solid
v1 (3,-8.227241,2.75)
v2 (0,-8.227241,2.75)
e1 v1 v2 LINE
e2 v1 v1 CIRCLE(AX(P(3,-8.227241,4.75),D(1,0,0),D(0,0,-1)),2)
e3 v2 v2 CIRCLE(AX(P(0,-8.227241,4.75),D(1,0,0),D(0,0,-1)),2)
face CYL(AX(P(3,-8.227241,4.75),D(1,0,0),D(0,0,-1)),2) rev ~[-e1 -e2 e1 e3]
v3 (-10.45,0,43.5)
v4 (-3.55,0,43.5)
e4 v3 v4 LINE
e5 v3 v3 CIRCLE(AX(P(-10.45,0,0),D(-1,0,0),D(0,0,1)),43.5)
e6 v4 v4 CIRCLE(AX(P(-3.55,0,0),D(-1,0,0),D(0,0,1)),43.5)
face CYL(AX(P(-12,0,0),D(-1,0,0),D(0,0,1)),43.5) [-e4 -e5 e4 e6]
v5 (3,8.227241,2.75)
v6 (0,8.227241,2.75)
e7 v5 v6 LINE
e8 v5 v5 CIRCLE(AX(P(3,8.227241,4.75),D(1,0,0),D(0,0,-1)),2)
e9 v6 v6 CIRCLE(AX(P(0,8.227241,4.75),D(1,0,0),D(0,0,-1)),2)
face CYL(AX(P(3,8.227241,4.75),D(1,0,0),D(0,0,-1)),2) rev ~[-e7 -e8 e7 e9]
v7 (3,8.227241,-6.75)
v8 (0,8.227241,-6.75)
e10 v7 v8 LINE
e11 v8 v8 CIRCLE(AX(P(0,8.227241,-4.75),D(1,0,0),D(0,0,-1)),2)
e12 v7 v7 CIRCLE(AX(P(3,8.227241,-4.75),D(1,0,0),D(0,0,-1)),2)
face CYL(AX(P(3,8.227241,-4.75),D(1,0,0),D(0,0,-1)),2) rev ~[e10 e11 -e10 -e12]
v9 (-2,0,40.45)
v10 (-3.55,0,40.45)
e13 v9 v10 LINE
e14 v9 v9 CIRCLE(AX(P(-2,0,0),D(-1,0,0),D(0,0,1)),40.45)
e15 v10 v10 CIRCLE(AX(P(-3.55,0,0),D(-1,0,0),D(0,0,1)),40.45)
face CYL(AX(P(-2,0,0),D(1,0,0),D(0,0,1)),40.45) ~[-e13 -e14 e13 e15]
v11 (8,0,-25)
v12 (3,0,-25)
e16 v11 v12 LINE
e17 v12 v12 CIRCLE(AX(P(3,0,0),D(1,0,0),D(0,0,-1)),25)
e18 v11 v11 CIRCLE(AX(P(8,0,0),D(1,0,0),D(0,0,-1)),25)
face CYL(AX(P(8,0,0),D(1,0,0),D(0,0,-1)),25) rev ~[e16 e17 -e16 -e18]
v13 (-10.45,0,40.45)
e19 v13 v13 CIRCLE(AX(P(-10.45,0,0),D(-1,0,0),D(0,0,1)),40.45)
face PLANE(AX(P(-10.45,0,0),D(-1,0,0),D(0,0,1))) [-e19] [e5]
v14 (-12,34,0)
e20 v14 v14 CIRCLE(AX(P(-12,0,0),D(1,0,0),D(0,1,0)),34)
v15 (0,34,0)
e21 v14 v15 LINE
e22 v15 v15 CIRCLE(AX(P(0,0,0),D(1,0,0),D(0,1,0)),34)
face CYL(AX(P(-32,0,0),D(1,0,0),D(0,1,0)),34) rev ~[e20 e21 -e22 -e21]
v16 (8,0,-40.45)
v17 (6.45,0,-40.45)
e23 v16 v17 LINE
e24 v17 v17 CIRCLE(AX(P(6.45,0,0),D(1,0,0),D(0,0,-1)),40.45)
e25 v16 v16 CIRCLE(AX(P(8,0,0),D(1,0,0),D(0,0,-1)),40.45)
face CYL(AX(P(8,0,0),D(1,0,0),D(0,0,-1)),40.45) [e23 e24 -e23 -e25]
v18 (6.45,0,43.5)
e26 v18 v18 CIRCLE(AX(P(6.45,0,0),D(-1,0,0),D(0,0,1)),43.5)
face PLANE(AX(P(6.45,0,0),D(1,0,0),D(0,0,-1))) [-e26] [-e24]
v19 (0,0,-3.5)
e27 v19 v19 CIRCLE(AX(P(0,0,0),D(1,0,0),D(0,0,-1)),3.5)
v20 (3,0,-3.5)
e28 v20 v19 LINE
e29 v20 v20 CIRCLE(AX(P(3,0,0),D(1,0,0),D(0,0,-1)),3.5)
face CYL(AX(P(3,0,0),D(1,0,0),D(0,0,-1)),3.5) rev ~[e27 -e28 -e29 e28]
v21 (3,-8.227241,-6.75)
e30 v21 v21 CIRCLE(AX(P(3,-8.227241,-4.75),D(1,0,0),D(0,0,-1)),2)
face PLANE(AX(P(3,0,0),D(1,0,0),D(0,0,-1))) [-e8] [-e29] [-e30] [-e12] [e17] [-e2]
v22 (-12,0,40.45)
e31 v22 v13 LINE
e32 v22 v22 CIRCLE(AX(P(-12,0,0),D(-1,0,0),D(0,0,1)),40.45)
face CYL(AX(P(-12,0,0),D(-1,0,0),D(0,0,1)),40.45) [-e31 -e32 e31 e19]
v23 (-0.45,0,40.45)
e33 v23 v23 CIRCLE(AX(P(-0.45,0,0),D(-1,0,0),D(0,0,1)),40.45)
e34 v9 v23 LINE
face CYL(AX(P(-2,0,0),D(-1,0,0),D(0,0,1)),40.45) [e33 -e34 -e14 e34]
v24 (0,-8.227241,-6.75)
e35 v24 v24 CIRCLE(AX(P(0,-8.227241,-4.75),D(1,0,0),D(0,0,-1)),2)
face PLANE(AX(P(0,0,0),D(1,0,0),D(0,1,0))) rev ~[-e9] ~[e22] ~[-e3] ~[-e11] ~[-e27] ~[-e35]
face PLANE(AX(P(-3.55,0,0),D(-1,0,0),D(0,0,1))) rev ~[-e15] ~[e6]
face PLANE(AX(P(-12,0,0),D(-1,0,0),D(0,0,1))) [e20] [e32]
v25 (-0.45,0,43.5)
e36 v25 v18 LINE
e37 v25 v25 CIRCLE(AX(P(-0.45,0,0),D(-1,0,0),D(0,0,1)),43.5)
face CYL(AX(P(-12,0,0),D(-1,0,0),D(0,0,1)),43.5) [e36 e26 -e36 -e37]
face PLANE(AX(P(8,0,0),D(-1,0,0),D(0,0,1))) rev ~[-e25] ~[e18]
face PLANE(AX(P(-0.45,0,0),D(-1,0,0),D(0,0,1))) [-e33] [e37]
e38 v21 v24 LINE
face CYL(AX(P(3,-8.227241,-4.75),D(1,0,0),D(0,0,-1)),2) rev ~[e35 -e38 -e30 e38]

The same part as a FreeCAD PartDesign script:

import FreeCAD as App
import Part
import Sketcher
Q = App.Units.Quantity


def add_polygon(sketch, points):
    """Adds a closed chain of lines whose ends are joined by coincident constraints."""
    first, n = sketch.GeometryCount, len(points)
    for a, b in zip(points, points[1:] + points[:1]):
        sketch.addGeometry(Part.LineSegment(App.Vector(*a, 0), App.Vector(*b, 0)), False)
    for i in range(n):
        sketch.addConstraint(Sketcher.Constraint("Coincident", first + i, 2, first + (i + 1) % n, 1))

doc = App.newDocument("Part")
body = doc.addObject("PartDesign::Body", "Body")

# Sketch on XY plane
sketch1 = body.newObject("Sketcher::SketchObject", "Sketch")
sketch1.AttachmentSupport = (doc.getObject("XY_Plane"), [""])
sketch1.MapMode = "FlatFace"
add_polygon(sketch1, [(0, 34), (0, 0), (8, 0), (8, 40), (3, 40), (3, 39), (-27, 39), (-27, 40), (-32, 40), (-32, 34)])  # lines 0-9
sketch1.addConstraint(Sketcher.Constraint("Vertical", 0))
sketch1.addConstraint(Sketcher.Constraint("Horizontal", 1))
sketch1.addConstraint(Sketcher.Constraint("Vertical", 2))
sketch1.addConstraint(Sketcher.Constraint("Horizontal", 3))
sketch1.addConstraint(Sketcher.Constraint("Vertical", 4))
sketch1.addConstraint(Sketcher.Constraint("Horizontal", 5))
sketch1.addConstraint(Sketcher.Constraint("Vertical", 6))
sketch1.addConstraint(Sketcher.Constraint("Horizontal", 7))
sketch1.addConstraint(Sketcher.Constraint("Vertical", 8))
sketch1.addConstraint(Sketcher.Constraint("Horizontal", 9))
sketch1.addConstraint(Sketcher.Constraint("Coincident", 0, 2, -1, 1))
sketch1.addConstraint(Sketcher.Constraint("Horizontal", 3, 2, 6, 2))
sketch1.addConstraint(Sketcher.Constraint("Equal", 3, 7))
sketch1.addConstraint(Sketcher.Constraint("DistanceX", 1, 1, 1, 2, Q("8 mm")))
sketch1.addConstraint(Sketcher.Constraint("DistanceX", 3, 2, 3, 1, Q("5 mm")))
sketch1.addConstraint(Sketcher.Constraint("DistanceX", 5, 2, 5, 1, Q("30 mm")))
sketch1.addConstraint(Sketcher.Constraint("DistanceY", 0, 2, 0, 1, Q("34 mm")))
sketch1.addConstraint(Sketcher.Constraint("DistanceY", 2, 1, 2, 2, Q("40 mm")))
sketch1.addConstraint(Sketcher.Constraint("DistanceY", 4, 2, 4, 1, Q("1 mm")))
revolution = body.newObject("PartDesign::Revolution", "Revolution")
revolution.Profile = sketch1
revolution.ReferenceAxis = (sketch1, ["H_Axis"])
revolution.Angle = 360

# Sketch on XY plane
sketch2 = body.newObject("Sketcher::SketchObject", "Sketch001")
sketch2.AttachmentSupport = (doc.getObject("XY_Plane"), [""])
sketch2.MapMode = "FlatFace"
add_polygon(sketch2, [(3, 12), (3, 0), (8, 0), (8, 12)])  # lines 0-3
sketch2.addConstraint(Sketcher.Constraint("Vertical", 0))
sketch2.addConstraint(Sketcher.Constraint("Horizontal", 1))
sketch2.addConstraint(Sketcher.Constraint("Vertical", 2))
sketch2.addConstraint(Sketcher.Constraint("Horizontal", 3))
sketch2.addConstraint(Sketcher.Constraint("PointOnObject", 0, 2, -1))
sketch2.addConstraint(Sketcher.Constraint("DistanceX", 1, 1, 1, 2, Q("5 mm")))
sketch2.addConstraint(Sketcher.Constraint("DistanceY", 0, 2, 0, 1, Q("12.5 mm")))
sketch2.addConstraint(Sketcher.Constraint("DistanceX", -1, 1, 0, 2, Q("3 mm")))
groove = body.newObject("PartDesign::Groove", "Groove")
groove.Profile = sketch2
groove.ReferenceAxis = (sketch2, ["H_Axis"])
groove.Angle = 360

# Sketch on YZ plane
sketch3 = body.newObject("Sketcher::SketchObject", "Sketch002")
sketch3.AttachmentSupport = (doc.getObject("YZ_Plane"), [""])
sketch3.MapMode = "FlatFace"
sketch3.AttachmentOffset = App.Placement(App.Vector(0, 0, 3), App.Rotation())
sketch3.addGeometry(Part.Circle(App.Vector(8.2, -4.8, 0), App.Vector(0, 0, 1), 2), False)
sketch3.addGeometry(Part.Circle(App.Vector(8.2, 4.8, 0), App.Vector(0, 0, 1), 2), False)
sketch3.addGeometry(Part.Circle(App.Vector(-8.2, -4.8, 0), App.Vector(0, 0, 1), 2), False)
sketch3.addGeometry(Part.Circle(App.Vector(-8.2, 4.8, 0), App.Vector(0, 0, 1), 2), False)
sketch3.addConstraint(Sketcher.Constraint("Equal", 0, 1))
sketch3.addConstraint(Sketcher.Constraint("Equal", 1, 2))
sketch3.addConstraint(Sketcher.Constraint("Equal", 2, 3))
sketch3.addConstraint(Sketcher.Constraint("Symmetric", 1, 3, 2, 3, -1, 1))
sketch3.addConstraint(Sketcher.Constraint("Symmetric", 0, 3, 3, 3, -1, 1))
sketch3.addConstraint(Sketcher.Constraint("Symmetric", 0, 3, 2, 3, -2))
sketch3.addConstraint(Sketcher.Constraint("Diameter", 0, Q("4 mm")))
sketch3.addConstraint(Sketcher.Constraint("DistanceY", 0, 3, 1, 3, Q("9.5 mm")))
sketch3.addConstraint(Sketcher.Constraint("DistanceX", -1, 1, 0, 3, Q("8.227241 mm")))
pocket1 = body.newObject("PartDesign::Pocket", "Pocket")
pocket1.Profile = sketch3
pocket1.Type = "ThroughAll"

# Sketch on YZ plane
sketch4 = body.newObject("Sketcher::SketchObject", "Sketch003")
sketch4.AttachmentSupport = (doc.getObject("YZ_Plane"), [""])
sketch4.MapMode = "FlatFace"
sketch4.AttachmentOffset = App.Placement(App.Vector(0, 0, 3), App.Rotation())
sketch4.addGeometry(Part.Circle(App.Vector(0, 0, 0), App.Vector(0, 0, 1), 3.5), False)
sketch4.addConstraint(Sketcher.Constraint("Coincident", 0, 3, -1, 1))
sketch4.addConstraint(Sketcher.Constraint("Diameter", 0, Q("7 mm")))
pocket2 = body.newObject("PartDesign::Pocket", "Pocket001")
pocket2.Profile = sketch4
pocket2.Type = "ThroughAll"

# Sketch on YZ plane
sketch5 = body.newObject("Sketcher::SketchObject", "Sketch004")
sketch5.AttachmentSupport = (doc.getObject("YZ_Plane"), [""])
sketch5.MapMode = "FlatFace"
sketch5.AttachmentOffset = App.Placement(App.Vector(0, 0, -32), App.Rotation())
sketch5.addGeometry(Part.Circle(App.Vector(0, 0, 0), App.Vector(0, 0, 1), 40), False)
sketch5.addConstraint(Sketcher.Constraint("Coincident", 0, 3, -1, 1))
sketch5.addConstraint(Sketcher.Constraint("Diameter", 0, Q("80 mm")))
pocket3 = body.newObject("PartDesign::Pocket", "Pocket002")
pocket3.Profile = sketch5
pocket3.Length = 20
pocket3.Reversed = True

# Sketch on YZ plane
sketch6 = body.newObject("Sketcher::SketchObject", "Sketch005")
sketch6.AttachmentSupport = (doc.getObject("YZ_Plane"), [""])
sketch6.MapMode = "FlatFace"
sketch6.AttachmentOffset = App.Placement(App.Vector(0, 0, 3), App.Rotation())
sketch6.addGeometry(Part.Circle(App.Vector(0, 0, 0), App.Vector(0, 0, 1), 40), False)
sketch6.addGeometry(Part.Circle(App.Vector(0, 0, 0), App.Vector(0, 0, 1), 39), False)
sketch6.addConstraint(Sketcher.Constraint("Coincident", 0, 3, -1, 1))
sketch6.addConstraint(Sketcher.Constraint("Coincident", 1, 3, -1, 1))
sketch6.addConstraint(Sketcher.Constraint("Diameter", 0, Q("80 mm")))
sketch6.addConstraint(Sketcher.Constraint("Diameter", 1, Q("78 mm")))
pad1 = body.newObject("PartDesign::Pad", "Pad")
pad1.Profile = sketch6
pad1.Length = 15
pad1.Reversed = True

# Sketch on YZ plane
sketch7 = body.newObject("Sketcher::SketchObject", "Sketch006")
sketch7.AttachmentSupport = (doc.getObject("YZ_Plane"), [""])
sketch7.MapMode = "FlatFace"
sketch7.AttachmentOffset = App.Placement(App.Vector(0, 0, 8), App.Rotation())
sketch7.addGeometry(Part.Circle(App.Vector(0, 0, 0), App.Vector(0, 0, 1), 25), False)
sketch7.addConstraint(Sketcher.Constraint("Coincident", 0, 3, -1, 1))
sketch7.addConstraint(Sketcher.Constraint("Diameter", 0, Q("50 mm")))
pocket4 = body.newObject("PartDesign::Pocket", "Pocket003")
pocket4.Profile = sketch7
pocket4.Length = 5

# Sketch on YZ plane
sketch8 = body.newObject("Sketcher::SketchObject", "Sketch007")
sketch8.AttachmentSupport = (doc.getObject("YZ_Plane"), [""])
sketch8.MapMode = "FlatFace"
sketch8.AttachmentOffset = App.Placement(App.Vector(0, 0, -12), App.Rotation())
sketch8.addGeometry(Part.Circle(App.Vector(0, 0, 0), App.Vector(0, 0, 1), 44), False)
sketch8.addGeometry(Part.Circle(App.Vector(0, 0, 0), App.Vector(0, 0, 1), 40), False)
sketch8.addConstraint(Sketcher.Constraint("Coincident", 0, 3, -1, 1))
sketch8.addConstraint(Sketcher.Constraint("Coincident", 1, 3, -1, 1))
sketch8.addConstraint(Sketcher.Constraint("Diameter", 0, Q("87 mm")))
sketch8.addConstraint(Sketcher.Constraint("Diameter", 1, Q("80 mm")))
pad2 = body.newObject("PartDesign::Pad", "Pad001")
pad2.Profile = sketch8
pad2.Length = 20

# Sketch on YZ plane
sketch9 = body.newObject("Sketcher::SketchObject", "Sketch008")
sketch9.AttachmentSupport = (doc.getObject("YZ_Plane"), [""])
sketch9.MapMode = "FlatFace"
sketch9.AttachmentOffset = App.Placement(App.Vector(0, 0, -12), App.Rotation())
sketch9.addGeometry(Part.Circle(App.Vector(0, 0, 0), App.Vector(0, 0, 1), 44), False)
sketch9.addGeometry(Part.Circle(App.Vector(0, 0, 0), App.Vector(0, 0, 1), 40), False)
sketch9.addConstraint(Sketcher.Constraint("Coincident", 0, 3, -1, 1))
sketch9.addConstraint(Sketcher.Constraint("Coincident", 1, 3, -1, 1))
sketch9.addConstraint(Sketcher.Constraint("Diameter", 0, Q("87 mm")))
sketch9.addConstraint(Sketcher.Constraint("Diameter", 1, Q("80.9 mm")))
pocket5 = body.newObject("PartDesign::Pocket", "Pocket004")
pocket5.Profile = sketch9
pocket5.Length = 1.55
pocket5.Reversed = True

# Sketch on YZ plane
sketch10 = body.newObject("Sketcher::SketchObject", "Sketch009")
sketch10.AttachmentSupport = (doc.getObject("YZ_Plane"), [""])
sketch10.MapMode = "FlatFace"
sketch10.AttachmentOffset = App.Placement(App.Vector(0, 0, -2), App.Rotation())
sketch10.addGeometry(Part.Circle(App.Vector(0, 0, 0), App.Vector(0, 0, 1), 44), False)
sketch10.addGeometry(Part.Circle(App.Vector(0, 0, 0), App.Vector(0, 0, 1), 40), False)
sketch10.addConstraint(Sketcher.Constraint("Coincident", 0, 3, -1, 1))
sketch10.addConstraint(Sketcher.Constraint("Coincident", 1, 3, -1, 1))
sketch10.addConstraint(Sketcher.Constraint("Diameter", 0, Q("87 mm")))
sketch10.addConstraint(Sketcher.Constraint("Diameter", 1, Q("80.9 mm")))
pocket6 = body.newObject("PartDesign::Pocket", "Pocket005")
pocket6.Profile = sketch10
pocket6.Type = "TwoLengths"
pocket6.Length = 1.55
pocket6.Length2 = 1.55

# Sketch on YZ plane
sketch11 = body.newObject("Sketcher::SketchObject", "Sketch010")
sketch11.AttachmentSupport = (doc.getObject("YZ_Plane"), [""])
sketch11.MapMode = "FlatFace"
sketch11.AttachmentOffset = App.Placement(App.Vector(0, 0, 8), App.Rotation())
sketch11.addGeometry(Part.Circle(App.Vector(0, 0, 0), App.Vector(0, 0, 1), 44), False)
sketch11.addGeometry(Part.Circle(App.Vector(0, 0, 0), App.Vector(0, 0, 1), 40), False)
sketch11.addConstraint(Sketcher.Constraint("Coincident", 0, 3, -1, 1))
sketch11.addConstraint(Sketcher.Constraint("Coincident", 1, 3, -1, 1))
sketch11.addConstraint(Sketcher.Constraint("Diameter", 0, Q("87 mm")))
sketch11.addConstraint(Sketcher.Constraint("Diameter", 1, Q("80.9 mm")))
pocket7 = body.newObject("PartDesign::Pocket", "Pocket006")
pocket7.Profile = sketch11
pocket7.Length = 1.55

doc.recompute()
